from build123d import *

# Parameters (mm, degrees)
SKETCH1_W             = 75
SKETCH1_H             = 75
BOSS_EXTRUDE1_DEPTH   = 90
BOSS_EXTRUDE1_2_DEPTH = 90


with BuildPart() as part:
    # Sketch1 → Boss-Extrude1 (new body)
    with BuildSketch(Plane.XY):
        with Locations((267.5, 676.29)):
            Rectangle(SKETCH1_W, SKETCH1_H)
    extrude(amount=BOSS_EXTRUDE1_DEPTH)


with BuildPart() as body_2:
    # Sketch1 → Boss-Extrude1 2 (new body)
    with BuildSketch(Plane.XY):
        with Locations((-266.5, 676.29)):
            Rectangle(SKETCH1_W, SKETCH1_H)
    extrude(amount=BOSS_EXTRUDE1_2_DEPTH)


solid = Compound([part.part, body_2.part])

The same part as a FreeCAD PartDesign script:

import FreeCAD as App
import Part
import Sketcher


def add_polygon(sketch, points):
    """Adds a closed chain of lines whose ends are joined by coincident constraints."""
    first, n = sketch.GeometryCount, len(points)
    for a, b in zip(points, points[1:] + points[:1]):
        sketch.addGeometry(Part.LineSegment(App.Vector(*a, 0), App.Vector(*b, 0)), False)
    for i in range(n):
        sketch.addConstraint(Sketcher.Constraint("Coincident", first + i, 2, first + (i + 1) % n, 1))

doc = App.newDocument("Part")
body = doc.addObject("PartDesign::Body", "Body")

# Sketch on XY plane
sketch1 = body.newObject("Sketcher::SketchObject", "Sketch")
sketch1.AttachmentSupport = (doc.getObject("XY_Plane"), [""])
sketch1.MapMode = "FlatFace"
add_polygon(sketch1, [(230, 714), (230, 639), (305, 639), (305, 714)])  # lines 0-3
sketch1.addConstraint([
    Sketcher.Constraint("Vertical", 0),
    Sketcher.Constraint("Horizontal", 1),
    Sketcher.Constraint("Vertical", 2),
    Sketcher.Constraint("Horizontal", 3),
    Sketcher.Constraint("Equal", 3, 0),
    Sketcher.Constraint("DistanceX", 1, 1, 1, 2, 75.0),
    Sketcher.Constraint("DistanceX", -1, 1, 0, 2, 230.0),
    Sketcher.Constraint("DistanceY", -1, 1, 0, 2, 638.79),
])
pad1 = body.newObject("PartDesign::Pad", "Pad")
pad1.Profile = sketch1
pad1.Length = 90
body2 = doc.addObject("PartDesign::Body", "Body001")

# Sketch on XY plane
sketch2 = body2.newObject("Sketcher::SketchObject", "Sketch001")
sketch2.AttachmentSupport = (doc.getObject("XY_Plane001"), [""])
sketch2.MapMode = "FlatFace"
add_polygon(sketch2, [(-304, 714), (-304, 639), (-229, 639), (-229, 714)])  # lines 0-3
sketch2.addConstraint([
    Sketcher.Constraint("Vertical", 0),
    Sketcher.Constraint("Horizontal", 1),
    Sketcher.Constraint("Vertical", 2),
    Sketcher.Constraint("Horizontal", 3),
    Sketcher.Constraint("Equal", 3, 0),
    Sketcher.Constraint("DistanceX", 1, 1, 1, 2, 75.0),
    Sketcher.Constraint("DistanceX", 0, 2, -1, 1, 304.0),
    Sketcher.Constraint("DistanceY", -1, 1, 0, 2, 638.79),
])
pad2 = body2.newObject("PartDesign::Pad", "Pad001")
pad2.Profile = sketch2
pad2.Length = 90

doc.recompute()
